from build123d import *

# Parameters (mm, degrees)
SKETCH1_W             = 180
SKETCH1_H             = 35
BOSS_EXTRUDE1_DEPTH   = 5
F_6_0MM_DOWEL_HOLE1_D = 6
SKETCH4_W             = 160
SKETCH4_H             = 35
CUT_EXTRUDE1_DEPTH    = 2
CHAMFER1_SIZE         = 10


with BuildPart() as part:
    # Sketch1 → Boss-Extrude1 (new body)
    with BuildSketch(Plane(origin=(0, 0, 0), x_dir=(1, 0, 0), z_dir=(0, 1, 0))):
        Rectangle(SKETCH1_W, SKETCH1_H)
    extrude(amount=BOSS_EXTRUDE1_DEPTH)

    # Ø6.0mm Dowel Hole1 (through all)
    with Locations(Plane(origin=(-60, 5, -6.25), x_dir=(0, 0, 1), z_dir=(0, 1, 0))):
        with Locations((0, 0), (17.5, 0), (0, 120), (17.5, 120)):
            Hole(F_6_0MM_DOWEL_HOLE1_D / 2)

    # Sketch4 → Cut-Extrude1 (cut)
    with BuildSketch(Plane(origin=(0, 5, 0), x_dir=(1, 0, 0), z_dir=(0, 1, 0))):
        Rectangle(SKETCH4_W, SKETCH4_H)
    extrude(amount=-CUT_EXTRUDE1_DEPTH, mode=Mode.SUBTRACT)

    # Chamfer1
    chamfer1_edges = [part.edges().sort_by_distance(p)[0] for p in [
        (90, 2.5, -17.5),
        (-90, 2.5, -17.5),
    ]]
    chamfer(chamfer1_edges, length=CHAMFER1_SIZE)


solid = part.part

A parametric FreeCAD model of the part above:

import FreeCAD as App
import Part
import Sketcher
from FreeCAD import Vector
Q = App.Units.Quantity


def edges_at(feature, points):
    """Names of the edges that pass closest to the given points."""
    edges = feature.Shape.Edges
    near = lambda p: min(range(len(edges)), key=lambda i: edges[i].distToShape(Part.Vertex(*p))[0])
    return sorted({f"Edge{near(p) + 1}" for p in points})


def add_polygon(sketch, points):
    """Adds a closed chain of lines whose ends are joined by coincident constraints."""
    first, n = sketch.GeometryCount, len(points)
    for a, b in zip(points, points[1:] + points[:1]):
        sketch.addGeometry(Part.LineSegment(App.Vector(*a, 0), App.Vector(*b, 0)), False)
    for i in range(n):
        sketch.addConstraint(Sketcher.Constraint("Coincident", first + i, 2, first + (i + 1) % n, 1))

doc = App.newDocument("Part")
body = doc.addObject("PartDesign::Body", "Body")

# Sketch on XZ plane
sketch1 = body.newObject("Sketcher::SketchObject", "Sketch")
sketch1.AttachmentSupport = (doc.getObject("XZ_Plane"), [""])
sketch1.MapMode = "FlatFace"
add_polygon(sketch1, [(-90, -17.5), (-90, 17.5), (90, 17.5), (90, -17.5)])  # lines 0-3
sketch1.addConstraint(Sketcher.Constraint("Vertical", 0))
sketch1.addConstraint(Sketcher.Constraint("Horizontal", 1))
sketch1.addConstraint(Sketcher.Constraint("Vertical", 2))
sketch1.addConstraint(Sketcher.Constraint("Horizontal", 3))
sketch1.addConstraint(Sketcher.Constraint("Symmetric", 0, 2, 2, 2, -1, 1))
sketch1.addConstraint(Sketcher.Constraint("DistanceX", 1, 1, 1, 2, Q("180 mm")))
sketch1.addConstraint(Sketcher.Constraint("DistanceY", 0, 1, 0, 2, Q("35 mm")))
pad1 = body.newObject("PartDesign::Pad", "Pad")
pad1.Profile = sketch1
pad1.Length = 5
pad1.Reversed = True

# Sketch on XZ plane
sketch2 = body.newObject("Sketcher::SketchObject", "Sketch001")
sketch2.AttachmentSupport = (doc.getObject("XZ_Plane"), [""])
sketch2.MapMode = "FlatFace"
sketch2.AttachmentOffset = App.Placement(Vector(0, 0, -5), App.Rotation())
sketch2.addGeometry(Part.Circle(Vector(-60, -6.25, 0), Vector(0, 0, 1), 3), False)
sketch2.addGeometry(Part.Circle(Vector(-60, 11.25, 0), Vector(0, 0, 1), 3), False)
sketch2.addGeometry(Part.Circle(Vector(60, -6.25, 0), Vector(0, 0, 1), 3), False)
sketch2.addGeometry(Part.Circle(Vector(60, 11.25, 0), Vector(0, 0, 1), 3), False)
sketch2.addConstraint(Sketcher.Constraint("Equal", 0, 1))
sketch2.addConstraint(Sketcher.Constraint("Equal", 1, 2))
sketch2.addConstraint(Sketcher.Constraint("Equal", 2, 3))
sketch2.addConstraint(Sketcher.Constraint("Symmetric", 0, 3, 2, 3, -2))
sketch2.addConstraint(Sketcher.Constraint("Symmetric", 1, 3, 3, 3, -2))
sketch2.addConstraint(Sketcher.Constraint("Vertical", 0, 3, 1, 3))
sketch2.addConstraint(Sketcher.Constraint("Diameter", 0, Q("6 mm")))
sketch2.addConstraint(Sketcher.Constraint("DistanceX", 0, 3, -1, 1, Q("60 mm")))
sketch2.addConstraint(Sketcher.Constraint("DistanceY", 0, 3, 1, 3, Q("17.5 mm")))
sketch2.addConstraint(Sketcher.Constraint("DistanceY", 0, 3, -1, 1, Q("6.25 mm")))
doc.recompute()
hole = body.newObject("PartDesign::Hole", "Hole")
hole.Profile = sketch2
hole.ThreadType = "None"
hole.Diameter = 6
hole.DepthType = "ThroughAll"
hole.Reversed = True

# Sketch on XZ plane
sketch3 = body.newObject("Sketcher::SketchObject", "Sketch002")
sketch3.AttachmentSupport = (doc.getObject("XZ_Plane"), [""])
sketch3.MapMode = "FlatFace"
sketch3.AttachmentOffset = App.Placement(Vector(0, 0, -5), App.Rotation())
add_polygon(sketch3, [(-80, -17.5), (-80, 17.5), (80, 17.5), (80, -17.5)])  # lines 0-3
sketch3.addConstraint(Sketcher.Constraint("Vertical", 0))
sketch3.addConstraint(Sketcher.Constraint("Horizontal", 1))
sketch3.addConstraint(Sketcher.Constraint("Vertical", 2))
sketch3.addConstraint(Sketcher.Constraint("Horizontal", 3))
sketch3.addConstraint(Sketcher.Constraint("Symmetric", 0, 2, 2, 2, -1, 1))
sketch3.addConstraint(Sketcher.Constraint("DistanceX", 1, 1, 1, 2, Q("160 mm")))
sketch3.addConstraint(Sketcher.Constraint("DistanceY", 0, 1, 0, 2, Q("35 mm")))
pocket1 = body.newObject("PartDesign::Pocket", "Pocket")
pocket1.Profile = sketch3
pocket1.Length = 2
pocket1.Reversed = True
doc.recompute()

chamfer = body.newObject("PartDesign::Chamfer", "Chamfer")
chamfer.Base = (pocket1, edges_at(pocket1, [(90, 2.5, -17.5), (-90, 2.5, -17.5)]))
chamfer.Size = 10

doc.recompute()
